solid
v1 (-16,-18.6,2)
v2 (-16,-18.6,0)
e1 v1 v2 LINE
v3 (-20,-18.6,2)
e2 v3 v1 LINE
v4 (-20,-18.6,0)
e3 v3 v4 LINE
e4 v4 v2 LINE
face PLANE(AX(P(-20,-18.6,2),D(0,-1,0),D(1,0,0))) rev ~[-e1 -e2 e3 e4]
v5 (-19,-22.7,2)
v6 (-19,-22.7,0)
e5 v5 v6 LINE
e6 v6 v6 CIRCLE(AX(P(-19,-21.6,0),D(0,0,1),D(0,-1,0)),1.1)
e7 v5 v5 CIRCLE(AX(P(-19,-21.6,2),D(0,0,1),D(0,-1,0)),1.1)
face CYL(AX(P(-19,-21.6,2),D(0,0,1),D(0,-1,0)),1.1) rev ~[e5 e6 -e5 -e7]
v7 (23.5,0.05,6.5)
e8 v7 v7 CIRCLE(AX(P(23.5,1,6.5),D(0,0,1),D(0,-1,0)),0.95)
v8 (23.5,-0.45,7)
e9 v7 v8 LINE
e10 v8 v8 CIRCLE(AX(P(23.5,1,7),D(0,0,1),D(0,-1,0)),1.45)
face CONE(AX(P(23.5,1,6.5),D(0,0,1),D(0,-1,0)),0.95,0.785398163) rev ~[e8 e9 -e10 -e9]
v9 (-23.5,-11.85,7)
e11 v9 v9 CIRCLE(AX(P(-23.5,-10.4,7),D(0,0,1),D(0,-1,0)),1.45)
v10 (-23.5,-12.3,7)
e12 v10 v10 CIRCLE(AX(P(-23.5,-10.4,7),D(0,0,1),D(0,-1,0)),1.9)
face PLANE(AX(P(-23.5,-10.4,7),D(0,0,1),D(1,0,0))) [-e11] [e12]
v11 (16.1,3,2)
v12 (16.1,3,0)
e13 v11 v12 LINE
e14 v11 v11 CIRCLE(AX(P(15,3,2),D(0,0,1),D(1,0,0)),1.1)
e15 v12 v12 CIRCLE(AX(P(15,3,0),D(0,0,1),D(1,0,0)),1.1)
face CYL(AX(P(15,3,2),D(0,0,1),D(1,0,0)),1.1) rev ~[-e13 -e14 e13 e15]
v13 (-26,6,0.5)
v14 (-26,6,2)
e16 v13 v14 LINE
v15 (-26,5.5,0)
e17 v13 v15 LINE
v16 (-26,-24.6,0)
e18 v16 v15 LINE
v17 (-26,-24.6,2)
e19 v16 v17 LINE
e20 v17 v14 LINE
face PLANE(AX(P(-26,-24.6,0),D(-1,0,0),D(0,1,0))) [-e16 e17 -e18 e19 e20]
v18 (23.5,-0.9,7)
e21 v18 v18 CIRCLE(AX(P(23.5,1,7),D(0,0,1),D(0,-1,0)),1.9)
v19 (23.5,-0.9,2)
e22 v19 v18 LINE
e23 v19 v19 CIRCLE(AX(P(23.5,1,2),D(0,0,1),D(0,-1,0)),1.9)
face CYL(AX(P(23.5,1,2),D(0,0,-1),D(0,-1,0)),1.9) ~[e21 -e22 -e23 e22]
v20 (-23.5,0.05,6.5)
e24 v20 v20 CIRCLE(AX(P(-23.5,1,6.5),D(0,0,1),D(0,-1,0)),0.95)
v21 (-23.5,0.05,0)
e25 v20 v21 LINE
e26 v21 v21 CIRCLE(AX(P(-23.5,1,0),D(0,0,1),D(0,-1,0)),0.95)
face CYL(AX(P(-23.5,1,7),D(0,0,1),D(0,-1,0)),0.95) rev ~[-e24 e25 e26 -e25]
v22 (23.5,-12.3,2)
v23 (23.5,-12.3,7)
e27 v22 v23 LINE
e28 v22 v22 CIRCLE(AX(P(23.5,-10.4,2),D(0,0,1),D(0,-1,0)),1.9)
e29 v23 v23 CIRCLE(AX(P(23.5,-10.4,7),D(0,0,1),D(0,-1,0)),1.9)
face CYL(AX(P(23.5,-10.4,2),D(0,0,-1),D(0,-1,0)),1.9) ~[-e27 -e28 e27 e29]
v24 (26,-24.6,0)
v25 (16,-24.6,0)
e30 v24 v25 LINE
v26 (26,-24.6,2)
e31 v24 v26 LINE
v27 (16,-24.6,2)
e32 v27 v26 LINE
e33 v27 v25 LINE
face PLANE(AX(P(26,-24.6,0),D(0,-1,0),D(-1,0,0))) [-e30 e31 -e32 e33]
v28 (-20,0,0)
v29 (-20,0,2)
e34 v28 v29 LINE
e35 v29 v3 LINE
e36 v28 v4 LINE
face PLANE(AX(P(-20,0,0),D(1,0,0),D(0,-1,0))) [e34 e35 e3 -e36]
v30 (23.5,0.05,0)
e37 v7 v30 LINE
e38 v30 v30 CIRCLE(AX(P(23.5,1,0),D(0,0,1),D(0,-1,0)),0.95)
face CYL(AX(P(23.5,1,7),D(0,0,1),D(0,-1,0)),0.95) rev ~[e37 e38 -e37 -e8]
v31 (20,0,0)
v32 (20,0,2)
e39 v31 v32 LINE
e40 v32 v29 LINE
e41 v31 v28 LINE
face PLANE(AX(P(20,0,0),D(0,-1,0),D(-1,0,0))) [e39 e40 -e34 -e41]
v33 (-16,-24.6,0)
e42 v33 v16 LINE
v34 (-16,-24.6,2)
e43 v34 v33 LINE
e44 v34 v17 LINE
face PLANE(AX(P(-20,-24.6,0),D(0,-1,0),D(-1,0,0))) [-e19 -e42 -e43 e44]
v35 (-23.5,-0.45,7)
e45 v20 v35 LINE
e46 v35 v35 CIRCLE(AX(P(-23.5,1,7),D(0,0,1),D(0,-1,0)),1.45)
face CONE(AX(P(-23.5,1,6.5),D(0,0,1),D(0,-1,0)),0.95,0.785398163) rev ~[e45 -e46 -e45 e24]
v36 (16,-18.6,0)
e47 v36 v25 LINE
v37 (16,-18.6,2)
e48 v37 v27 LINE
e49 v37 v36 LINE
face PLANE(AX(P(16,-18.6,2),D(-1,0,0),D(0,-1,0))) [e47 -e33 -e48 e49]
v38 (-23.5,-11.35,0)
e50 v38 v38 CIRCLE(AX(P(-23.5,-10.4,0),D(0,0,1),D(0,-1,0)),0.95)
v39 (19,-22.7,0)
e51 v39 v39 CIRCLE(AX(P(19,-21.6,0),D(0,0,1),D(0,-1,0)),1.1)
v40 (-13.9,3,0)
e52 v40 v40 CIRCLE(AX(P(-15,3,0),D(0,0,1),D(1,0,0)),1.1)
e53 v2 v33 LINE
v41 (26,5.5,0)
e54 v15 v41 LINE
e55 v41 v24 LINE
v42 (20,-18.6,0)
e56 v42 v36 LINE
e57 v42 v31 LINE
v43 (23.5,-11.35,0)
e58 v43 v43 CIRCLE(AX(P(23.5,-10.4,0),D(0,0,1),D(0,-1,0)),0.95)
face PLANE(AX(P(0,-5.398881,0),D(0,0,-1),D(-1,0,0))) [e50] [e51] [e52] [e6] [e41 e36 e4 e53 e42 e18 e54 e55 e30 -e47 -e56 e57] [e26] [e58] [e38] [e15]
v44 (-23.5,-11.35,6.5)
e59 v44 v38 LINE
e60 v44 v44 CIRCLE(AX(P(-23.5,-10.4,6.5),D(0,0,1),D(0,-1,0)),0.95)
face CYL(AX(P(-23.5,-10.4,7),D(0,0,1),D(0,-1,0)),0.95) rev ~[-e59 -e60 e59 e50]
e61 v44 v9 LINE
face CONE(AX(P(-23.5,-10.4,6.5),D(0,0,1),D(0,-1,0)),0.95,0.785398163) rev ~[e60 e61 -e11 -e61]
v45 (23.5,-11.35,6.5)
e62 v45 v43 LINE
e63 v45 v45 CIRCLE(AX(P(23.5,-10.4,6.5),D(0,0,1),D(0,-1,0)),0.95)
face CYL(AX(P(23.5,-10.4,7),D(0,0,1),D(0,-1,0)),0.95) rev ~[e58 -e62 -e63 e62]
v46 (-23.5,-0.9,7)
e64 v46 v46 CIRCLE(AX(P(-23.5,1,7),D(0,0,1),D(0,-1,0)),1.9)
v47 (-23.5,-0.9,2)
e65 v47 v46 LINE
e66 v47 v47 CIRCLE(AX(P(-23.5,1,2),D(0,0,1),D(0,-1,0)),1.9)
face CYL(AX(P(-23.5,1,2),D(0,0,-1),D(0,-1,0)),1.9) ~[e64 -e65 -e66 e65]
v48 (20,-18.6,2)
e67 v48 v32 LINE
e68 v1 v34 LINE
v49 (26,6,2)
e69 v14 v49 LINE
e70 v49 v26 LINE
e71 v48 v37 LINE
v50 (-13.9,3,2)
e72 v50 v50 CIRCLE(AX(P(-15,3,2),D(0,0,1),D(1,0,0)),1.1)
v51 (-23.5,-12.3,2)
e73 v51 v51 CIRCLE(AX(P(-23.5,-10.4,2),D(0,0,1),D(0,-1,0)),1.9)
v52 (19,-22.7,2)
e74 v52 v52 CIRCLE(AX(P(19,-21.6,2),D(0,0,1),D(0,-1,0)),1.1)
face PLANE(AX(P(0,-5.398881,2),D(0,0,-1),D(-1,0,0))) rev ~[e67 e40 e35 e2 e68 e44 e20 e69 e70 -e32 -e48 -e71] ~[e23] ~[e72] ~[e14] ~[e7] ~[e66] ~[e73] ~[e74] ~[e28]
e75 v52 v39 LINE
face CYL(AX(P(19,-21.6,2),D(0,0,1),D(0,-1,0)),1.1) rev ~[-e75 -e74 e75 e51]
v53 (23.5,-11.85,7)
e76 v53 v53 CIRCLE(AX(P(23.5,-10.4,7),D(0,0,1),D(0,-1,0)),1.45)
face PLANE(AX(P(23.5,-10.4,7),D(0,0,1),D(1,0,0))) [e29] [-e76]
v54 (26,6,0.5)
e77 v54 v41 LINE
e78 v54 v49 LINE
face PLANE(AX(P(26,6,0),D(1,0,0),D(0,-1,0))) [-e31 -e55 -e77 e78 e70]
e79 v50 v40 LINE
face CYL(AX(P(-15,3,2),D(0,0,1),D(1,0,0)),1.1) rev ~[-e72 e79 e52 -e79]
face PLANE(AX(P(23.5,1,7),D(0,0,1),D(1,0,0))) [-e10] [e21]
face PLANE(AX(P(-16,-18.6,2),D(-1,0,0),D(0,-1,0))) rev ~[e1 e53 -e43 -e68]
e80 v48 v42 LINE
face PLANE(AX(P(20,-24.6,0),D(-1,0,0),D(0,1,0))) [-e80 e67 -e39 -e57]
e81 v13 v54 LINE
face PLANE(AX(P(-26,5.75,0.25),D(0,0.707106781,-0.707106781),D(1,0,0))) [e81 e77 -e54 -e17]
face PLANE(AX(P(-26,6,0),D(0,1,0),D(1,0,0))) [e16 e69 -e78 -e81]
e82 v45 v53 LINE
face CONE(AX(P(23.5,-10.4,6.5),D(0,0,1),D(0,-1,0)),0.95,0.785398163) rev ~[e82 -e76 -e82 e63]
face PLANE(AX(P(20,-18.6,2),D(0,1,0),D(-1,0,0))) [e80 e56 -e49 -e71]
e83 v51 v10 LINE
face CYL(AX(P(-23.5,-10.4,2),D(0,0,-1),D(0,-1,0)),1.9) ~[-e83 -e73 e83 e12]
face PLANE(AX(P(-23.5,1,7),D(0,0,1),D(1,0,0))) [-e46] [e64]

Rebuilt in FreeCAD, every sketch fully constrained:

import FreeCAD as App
import Part
import Sketcher

V = App.Vector
Q = App.Units.Quantity


def edges_at(feature, points):
    """Names of the edges that pass closest to the given points."""
    edges = feature.Shape.Edges
    near = lambda p: min(range(len(edges)), key=lambda i: edges[i].distToShape(Part.Vertex(*p))[0])
    return sorted({f"Edge{near(p) + 1}" for p in points})


def add_polygon(sketch, points):
    """Adds a closed chain of lines whose ends are joined by coincident constraints."""
    first, n = sketch.GeometryCount, len(points)
    for a, b in zip(points, points[1:] + points[:1]):
        sketch.addGeometry(Part.LineSegment(App.Vector(*a, 0), App.Vector(*b, 0)), False)
    for i in range(n):
        sketch.addConstraint(Sketcher.Constraint("Coincident", first + i, 2, first + (i + 1) % n, 1))

doc = App.newDocument("Part")
params = doc.addObject("Spreadsheet::Sheet", "Params")
for row, (alias, value) in enumerate([
    ("sketch1_height", "30.6 mm"),
    ("sketch1_height2", "24.6 mm"),
    ("pad1_length", "2 mm"),
    ("sketch2_diameter", "2.2 mm"),
    ("chamfer_size", "0.5 mm"),
    ("sketch3_diameter", "3.8 mm"),
    ("pad2_length", "5 mm"),
    ("sketch4_diameter", "1.9 mm"),
    ("chamfer2_size", "0.5 mm"),
    ("sketch5_width", "4 mm"),
    ("sketch5_width2", "6 mm"),
    ("pad3_length", "2 mm"),
    ("sketch6_diameter", "2.2 mm"),
], start=1):
    params.set(f"A{row}", alias)
    params.set(f"B{row}", "=" + value)
    params.setAlias(f"B{row}", alias)

body = doc.addObject("PartDesign::Body", "Body")

# Sketch on XY plane
sketch1 = doc.addObject("Sketcher::SketchObject", "Sketch")
body.addObject(sketch1)
sketch1.AttachmentSupport = (doc.XY_Plane, [""])
sketch1.MapMode = "FlatFace"
add_polygon(sketch1, [(26, 6), (-26, 6), (-26, -25), (-20, -25), (-20, 0), (20, 0), (20, -25), (26, -25)])  # lines 0-7
sketch1.addConstraint(Sketcher.Constraint("Horizontal", 0))
sketch1.addConstraint(Sketcher.Constraint("Vertical", 1))
sketch1.addConstraint(Sketcher.Constraint("Horizontal", 2))
sketch1.addConstraint(Sketcher.Constraint("Vertical", 3))
sketch1.addConstraint(Sketcher.Constraint("Horizontal", 4))
sketch1.addConstraint(Sketcher.Constraint("Vertical", 5))
sketch1.addConstraint(Sketcher.Constraint("Horizontal", 6))
sketch1.addConstraint(Sketcher.Constraint("Vertical", 7))
sketch1.addConstraint(Sketcher.Constraint("Symmetric", 3, 2, 4, 2, -1, 1))
sketch1.addConstraint(Sketcher.Constraint("Symmetric", 1, 2, 6, 2, -2))
sketch1.addConstraint(Sketcher.Constraint("DistanceX", 0, 2, -1, 1, Q("26 mm")))
sketch1.addConstraint(Sketcher.Constraint("DistanceX", 2, 2, -1, 1, Q("20 mm")))
sketch1.addConstraint(Sketcher.Constraint("DistanceY", 1, 2, 1, 1, Q("30.6 mm")))
sketch1.addConstraint(Sketcher.Constraint("DistanceY", 3, 1, 3, 2, Q("24.6 mm")))
sketch1.setExpression("Constraints[20]", "Params.sketch1_height")
sketch1.setExpression("Constraints[21]", "Params.sketch1_height2")
pad1 = doc.addObject("PartDesign::Pad", "Pad")
body.addObject(pad1)
pad1.Profile = sketch1
pad1.setExpression("Length", "Params.pad1_length")

# Sketch on XY plane
sketch2 = doc.addObject("Sketcher::SketchObject", "Sketch001")
body.addObject(sketch2)
sketch2.AttachmentSupport = (doc.XY_Plane, [""])
sketch2.MapMode = "FlatFace"
sketch2.AttachmentOffset = App.Placement(V(0, 0, 2), App.Rotation())
sketch2.addGeometry(Part.Circle(V(15, 3, 0), V(0, 0, 1), 1.1), False)
sketch2.addGeometry(Part.Circle(V(-15, 3, 0), V(0, 0, 1), 1.1), False)
sketch2.addConstraint(Sketcher.Constraint("Equal", 0, 1))
sketch2.addConstraint(Sketcher.Constraint("Symmetric", 0, 3, 1, 3, -2))
sketch2.addConstraint(Sketcher.Constraint("DistanceX", -1, 1, 0, 3, Q("15 mm")))
sketch2.addConstraint(Sketcher.Constraint("Diameter", 0, Q("2.2 mm")))
sketch2.addConstraint(Sketcher.Constraint("DistanceY", -1, 1, 0, 3, Q("3 mm")))
sketch2.setExpression("Constraints[3]", "Params.sketch2_diameter")
pocket1 = doc.addObject("PartDesign::Pocket", "Pocket")
body.addObject(pocket1)
pocket1.Profile = sketch2
pocket1.Type = "ThroughAll"
doc.recompute()

chamfer = doc.addObject("PartDesign::Chamfer", "Chamfer")
body.addObject(chamfer)
chamfer.Base = (pocket1, edges_at(pocket1, [(0, 6, 0)]))
chamfer.setExpression("Size", "Params.chamfer_size")

# Sketch on XY plane
sketch3 = doc.addObject("Sketcher::SketchObject", "Sketch002")
body.addObject(sketch3)
sketch3.AttachmentSupport = (doc.XY_Plane, [""])
sketch3.MapMode = "FlatFace"
sketch3.AttachmentOffset = App.Placement(V(0, 0, 2), App.Rotation())
sketch3.addGeometry(Part.Circle(V(23.5, 1, 0), V(0, 0, 1), 1.9), False)
sketch3.addGeometry(Part.Circle(V(23.5, -10.4, 0), V(0, 0, 1), 1.9), False)
sketch3.addGeometry(Part.Circle(V(-23.5, -10.4, 0), V(0, 0, 1), 1.9), False)
sketch3.addGeometry(Part.Circle(V(-23.5, 1, 0), V(0, 0, 1), 1.9), False)
sketch3.addConstraint(Sketcher.Constraint("Equal", 0, 1))
sketch3.addConstraint(Sketcher.Constraint("Equal", 1, 2))
sketch3.addConstraint(Sketcher.Constraint("Equal", 2, 3))
sketch3.addConstraint(Sketcher.Constraint("Symmetric", 1, 3, 2, 3, -2))
sketch3.addConstraint(Sketcher.Constraint("Symmetric", 0, 3, 3, 3, -2))
sketch3.addConstraint(Sketcher.Constraint("Vertical", 0, 3, 1, 3))
sketch3.addConstraint(Sketcher.Constraint("Diameter", 0, Q("3.8 mm")))
sketch3.addConstraint(Sketcher.Constraint("DistanceY", -1, 1, 0, 3, Q("1 mm")))
sketch3.addConstraint(Sketcher.Constraint("DistanceX", 2, 3, 1, 3, Q("47 mm")))
sketch3.addConstraint(Sketcher.Constraint("DistanceY", 1, 3, -1, 1, Q("10.4 mm")))
sketch3.setExpression("Constraints[6]", "Params.sketch3_diameter")
pad2 = doc.addObject("PartDesign::Pad", "Pad001")
body.addObject(pad2)
pad2.Profile = sketch3
pad2.setExpression("Length", "Params.pad2_length")

# Sketch on XY plane
sketch4 = doc.addObject("Sketcher::SketchObject", "Sketch003")
body.addObject(sketch4)
sketch4.AttachmentSupport = (doc.XY_Plane, [""])
sketch4.MapMode = "FlatFace"
sketch4.AttachmentOffset = App.Placement(V(0, 0, 7), App.Rotation())
sketch4.addGeometry(Part.Circle(V(23.5, 1, 0), V(0, 0, 1), 0.9), False)
sketch4.addGeometry(Part.Circle(V(23.5, -10.4, 0), V(0, 0, 1), 0.9), False)
sketch4.addGeometry(Part.Circle(V(-23.5, 1, 0), V(0, 0, 1), 0.9), False)
sketch4.addGeometry(Part.Circle(V(-23.5, -10.4, 0), V(0, 0, 1), 0.9), False)
sketch4.addConstraint(Sketcher.Constraint("Equal", 0, 1))
sketch4.addConstraint(Sketcher.Constraint("Equal", 1, 2))
sketch4.addConstraint(Sketcher.Constraint("Equal", 2, 3))
sketch4.addConstraint(Sketcher.Constraint("Symmetric", 0, 3, 2, 3, -2))
sketch4.addConstraint(Sketcher.Constraint("Symmetric", 1, 3, 3, 3, -2))
sketch4.addConstraint(Sketcher.Constraint("Vertical", 0, 3, 1, 3))
sketch4.addConstraint(Sketcher.Constraint("Diameter", 0, Q("1.9 mm")))
sketch4.addConstraint(Sketcher.Constraint("DistanceY", -1, 1, 0, 3, Q("1 mm")))
sketch4.addConstraint(Sketcher.Constraint("DistanceX", 2, 3, 0, 3, Q("47 mm")))
sketch4.addConstraint(Sketcher.Constraint("DistanceY", 1, 3, -1, 1, Q("10.4 mm")))
sketch4.setExpression("Constraints[6]", "Params.sketch4_diameter")
pocket2 = doc.addObject("PartDesign::Pocket", "Pocket001")
body.addObject(pocket2)
pocket2.Profile = sketch4
pocket2.Type = "ThroughAll"
doc.recompute()

chamfer2 = doc.addObject("PartDesign::Chamfer", "Chamfer001")
body.addObject(chamfer2)
chamfer2.Base = (pocket2, edges_at(pocket2, [
    (23.5, 1.95, 7),
    (23.5, -9.45, 7),
    (-23.5, 1.95, 7),
    (-23.5, -9.45, 7),
]))
chamfer2.setExpression("Size", "Params.chamfer2_size")

# Sketch on XY plane
sketch5 = doc.addObject("Sketcher::SketchObject", "Sketch004")
body.addObject(sketch5)
sketch5.AttachmentSupport = (doc.XY_Plane, [""])
sketch5.MapMode = "FlatFace"
sketch5.AttachmentOffset = App.Placement(V(0, 0, 2), App.Rotation())
add_polygon(sketch5, [(-16, -24.6), (-16, -18.6), (-20, -18.6), (-20, -12.6), (-26, -12.6), (-26, -24.6)])  # lines 0-5
add_polygon(sketch5, [(20, -18.6), (16, -18.6), (16, -24.6), (26, -24.6), (26, -12.6), (20, -12.6)])  # lines 6-11
sketch5.addConstraint(Sketcher.Constraint("Vertical", 0))
sketch5.addConstraint(Sketcher.Constraint("Horizontal", 1))
sketch5.addConstraint(Sketcher.Constraint("Vertical", 2))
sketch5.addConstraint(Sketcher.Constraint("Horizontal", 3))
sketch5.addConstraint(Sketcher.Constraint("Vertical", 4))
sketch5.addConstraint(Sketcher.Constraint("Horizontal", 5))
sketch5.addConstraint(Sketcher.Constraint("Horizontal", 6))
sketch5.addConstraint(Sketcher.Constraint("Vertical", 7))
sketch5.addConstraint(Sketcher.Constraint("Horizontal", 8))
sketch5.addConstraint(Sketcher.Constraint("Vertical", 9))
sketch5.addConstraint(Sketcher.Constraint("Horizontal", 10))
sketch5.addConstraint(Sketcher.Constraint("Vertical", 11))
sketch5.addConstraint(Sketcher.Constraint("Symmetric", 0, 2, 6, 2, -2))
sketch5.addConstraint(Sketcher.Constraint("Symmetric", 4, 2, 8, 2, -2))
sketch5.addConstraint(Sketcher.Constraint("Symmetric", 2, 2, 10, 2, -2))
sketch5.addConstraint(Sketcher.Constraint("Equal", 10, 0))
sketch5.addConstraint(Sketcher.Constraint("Equal", 0, 2))
sketch5.addConstraint(Sketcher.Constraint("DistanceX", 1, 2, 1, 1, Q("4 mm")))
sketch5.addConstraint(Sketcher.Constraint("DistanceX", 3, 2, 3, 1, Q("6 mm")))
sketch5.addConstraint(Sketcher.Constraint("DistanceX", 0, 2, -1, 1, Q("16 mm")))
sketch5.addConstraint(Sketcher.Constraint("DistanceY", 0, 2, -1, 1, Q("18.6 mm")))
sketch5.setExpression("Constraints[29]", "Params.sketch5_width")
sketch5.setExpression("Constraints[30]", "Params.sketch5_width2")
pad3 = doc.addObject("PartDesign::Pad", "Pad002")
body.addObject(pad3)
pad3.Profile = sketch5
pad3.setExpression("Length", "Params.pad3_length")
pad3.Reversed = True

# Sketch on XY plane
sketch6 = doc.addObject("Sketcher::SketchObject", "Sketch005")
body.addObject(sketch6)
sketch6.AttachmentSupport = (doc.XY_Plane, [""])
sketch6.MapMode = "FlatFace"
sketch6.AttachmentOffset = App.Placement(V(0, 0, 2), App.Rotation())
sketch6.addGeometry(Part.Circle(V(19, -21.6, 0), V(0, 0, 1), 1.1), False)
sketch6.addGeometry(Part.Circle(V(-19, -21.6, 0), V(0, 0, 1), 1.1), False)
sketch6.addConstraint(Sketcher.Constraint("Equal", 0, 1))
sketch6.addConstraint(Sketcher.Constraint("Symmetric", 0, 3, 1, 3, -2))
sketch6.addConstraint(Sketcher.Constraint("Diameter", 0, Q("2.2 mm")))
sketch6.addConstraint(Sketcher.Constraint("DistanceX", -1, 1, 0, 3, Q("19 mm")))
sketch6.addConstraint(Sketcher.Constraint("DistanceY", 0, 3, -1, 1, Q("21.6 mm")))
sketch6.setExpression("Constraints[2]", "Params.sketch6_diameter")
pocket3 = doc.addObject("PartDesign::Pocket", "Pocket002")
body.addObject(pocket3)
pocket3.Profile = sketch6
pocket3.Type = "ThroughAll"

doc.recompute()
